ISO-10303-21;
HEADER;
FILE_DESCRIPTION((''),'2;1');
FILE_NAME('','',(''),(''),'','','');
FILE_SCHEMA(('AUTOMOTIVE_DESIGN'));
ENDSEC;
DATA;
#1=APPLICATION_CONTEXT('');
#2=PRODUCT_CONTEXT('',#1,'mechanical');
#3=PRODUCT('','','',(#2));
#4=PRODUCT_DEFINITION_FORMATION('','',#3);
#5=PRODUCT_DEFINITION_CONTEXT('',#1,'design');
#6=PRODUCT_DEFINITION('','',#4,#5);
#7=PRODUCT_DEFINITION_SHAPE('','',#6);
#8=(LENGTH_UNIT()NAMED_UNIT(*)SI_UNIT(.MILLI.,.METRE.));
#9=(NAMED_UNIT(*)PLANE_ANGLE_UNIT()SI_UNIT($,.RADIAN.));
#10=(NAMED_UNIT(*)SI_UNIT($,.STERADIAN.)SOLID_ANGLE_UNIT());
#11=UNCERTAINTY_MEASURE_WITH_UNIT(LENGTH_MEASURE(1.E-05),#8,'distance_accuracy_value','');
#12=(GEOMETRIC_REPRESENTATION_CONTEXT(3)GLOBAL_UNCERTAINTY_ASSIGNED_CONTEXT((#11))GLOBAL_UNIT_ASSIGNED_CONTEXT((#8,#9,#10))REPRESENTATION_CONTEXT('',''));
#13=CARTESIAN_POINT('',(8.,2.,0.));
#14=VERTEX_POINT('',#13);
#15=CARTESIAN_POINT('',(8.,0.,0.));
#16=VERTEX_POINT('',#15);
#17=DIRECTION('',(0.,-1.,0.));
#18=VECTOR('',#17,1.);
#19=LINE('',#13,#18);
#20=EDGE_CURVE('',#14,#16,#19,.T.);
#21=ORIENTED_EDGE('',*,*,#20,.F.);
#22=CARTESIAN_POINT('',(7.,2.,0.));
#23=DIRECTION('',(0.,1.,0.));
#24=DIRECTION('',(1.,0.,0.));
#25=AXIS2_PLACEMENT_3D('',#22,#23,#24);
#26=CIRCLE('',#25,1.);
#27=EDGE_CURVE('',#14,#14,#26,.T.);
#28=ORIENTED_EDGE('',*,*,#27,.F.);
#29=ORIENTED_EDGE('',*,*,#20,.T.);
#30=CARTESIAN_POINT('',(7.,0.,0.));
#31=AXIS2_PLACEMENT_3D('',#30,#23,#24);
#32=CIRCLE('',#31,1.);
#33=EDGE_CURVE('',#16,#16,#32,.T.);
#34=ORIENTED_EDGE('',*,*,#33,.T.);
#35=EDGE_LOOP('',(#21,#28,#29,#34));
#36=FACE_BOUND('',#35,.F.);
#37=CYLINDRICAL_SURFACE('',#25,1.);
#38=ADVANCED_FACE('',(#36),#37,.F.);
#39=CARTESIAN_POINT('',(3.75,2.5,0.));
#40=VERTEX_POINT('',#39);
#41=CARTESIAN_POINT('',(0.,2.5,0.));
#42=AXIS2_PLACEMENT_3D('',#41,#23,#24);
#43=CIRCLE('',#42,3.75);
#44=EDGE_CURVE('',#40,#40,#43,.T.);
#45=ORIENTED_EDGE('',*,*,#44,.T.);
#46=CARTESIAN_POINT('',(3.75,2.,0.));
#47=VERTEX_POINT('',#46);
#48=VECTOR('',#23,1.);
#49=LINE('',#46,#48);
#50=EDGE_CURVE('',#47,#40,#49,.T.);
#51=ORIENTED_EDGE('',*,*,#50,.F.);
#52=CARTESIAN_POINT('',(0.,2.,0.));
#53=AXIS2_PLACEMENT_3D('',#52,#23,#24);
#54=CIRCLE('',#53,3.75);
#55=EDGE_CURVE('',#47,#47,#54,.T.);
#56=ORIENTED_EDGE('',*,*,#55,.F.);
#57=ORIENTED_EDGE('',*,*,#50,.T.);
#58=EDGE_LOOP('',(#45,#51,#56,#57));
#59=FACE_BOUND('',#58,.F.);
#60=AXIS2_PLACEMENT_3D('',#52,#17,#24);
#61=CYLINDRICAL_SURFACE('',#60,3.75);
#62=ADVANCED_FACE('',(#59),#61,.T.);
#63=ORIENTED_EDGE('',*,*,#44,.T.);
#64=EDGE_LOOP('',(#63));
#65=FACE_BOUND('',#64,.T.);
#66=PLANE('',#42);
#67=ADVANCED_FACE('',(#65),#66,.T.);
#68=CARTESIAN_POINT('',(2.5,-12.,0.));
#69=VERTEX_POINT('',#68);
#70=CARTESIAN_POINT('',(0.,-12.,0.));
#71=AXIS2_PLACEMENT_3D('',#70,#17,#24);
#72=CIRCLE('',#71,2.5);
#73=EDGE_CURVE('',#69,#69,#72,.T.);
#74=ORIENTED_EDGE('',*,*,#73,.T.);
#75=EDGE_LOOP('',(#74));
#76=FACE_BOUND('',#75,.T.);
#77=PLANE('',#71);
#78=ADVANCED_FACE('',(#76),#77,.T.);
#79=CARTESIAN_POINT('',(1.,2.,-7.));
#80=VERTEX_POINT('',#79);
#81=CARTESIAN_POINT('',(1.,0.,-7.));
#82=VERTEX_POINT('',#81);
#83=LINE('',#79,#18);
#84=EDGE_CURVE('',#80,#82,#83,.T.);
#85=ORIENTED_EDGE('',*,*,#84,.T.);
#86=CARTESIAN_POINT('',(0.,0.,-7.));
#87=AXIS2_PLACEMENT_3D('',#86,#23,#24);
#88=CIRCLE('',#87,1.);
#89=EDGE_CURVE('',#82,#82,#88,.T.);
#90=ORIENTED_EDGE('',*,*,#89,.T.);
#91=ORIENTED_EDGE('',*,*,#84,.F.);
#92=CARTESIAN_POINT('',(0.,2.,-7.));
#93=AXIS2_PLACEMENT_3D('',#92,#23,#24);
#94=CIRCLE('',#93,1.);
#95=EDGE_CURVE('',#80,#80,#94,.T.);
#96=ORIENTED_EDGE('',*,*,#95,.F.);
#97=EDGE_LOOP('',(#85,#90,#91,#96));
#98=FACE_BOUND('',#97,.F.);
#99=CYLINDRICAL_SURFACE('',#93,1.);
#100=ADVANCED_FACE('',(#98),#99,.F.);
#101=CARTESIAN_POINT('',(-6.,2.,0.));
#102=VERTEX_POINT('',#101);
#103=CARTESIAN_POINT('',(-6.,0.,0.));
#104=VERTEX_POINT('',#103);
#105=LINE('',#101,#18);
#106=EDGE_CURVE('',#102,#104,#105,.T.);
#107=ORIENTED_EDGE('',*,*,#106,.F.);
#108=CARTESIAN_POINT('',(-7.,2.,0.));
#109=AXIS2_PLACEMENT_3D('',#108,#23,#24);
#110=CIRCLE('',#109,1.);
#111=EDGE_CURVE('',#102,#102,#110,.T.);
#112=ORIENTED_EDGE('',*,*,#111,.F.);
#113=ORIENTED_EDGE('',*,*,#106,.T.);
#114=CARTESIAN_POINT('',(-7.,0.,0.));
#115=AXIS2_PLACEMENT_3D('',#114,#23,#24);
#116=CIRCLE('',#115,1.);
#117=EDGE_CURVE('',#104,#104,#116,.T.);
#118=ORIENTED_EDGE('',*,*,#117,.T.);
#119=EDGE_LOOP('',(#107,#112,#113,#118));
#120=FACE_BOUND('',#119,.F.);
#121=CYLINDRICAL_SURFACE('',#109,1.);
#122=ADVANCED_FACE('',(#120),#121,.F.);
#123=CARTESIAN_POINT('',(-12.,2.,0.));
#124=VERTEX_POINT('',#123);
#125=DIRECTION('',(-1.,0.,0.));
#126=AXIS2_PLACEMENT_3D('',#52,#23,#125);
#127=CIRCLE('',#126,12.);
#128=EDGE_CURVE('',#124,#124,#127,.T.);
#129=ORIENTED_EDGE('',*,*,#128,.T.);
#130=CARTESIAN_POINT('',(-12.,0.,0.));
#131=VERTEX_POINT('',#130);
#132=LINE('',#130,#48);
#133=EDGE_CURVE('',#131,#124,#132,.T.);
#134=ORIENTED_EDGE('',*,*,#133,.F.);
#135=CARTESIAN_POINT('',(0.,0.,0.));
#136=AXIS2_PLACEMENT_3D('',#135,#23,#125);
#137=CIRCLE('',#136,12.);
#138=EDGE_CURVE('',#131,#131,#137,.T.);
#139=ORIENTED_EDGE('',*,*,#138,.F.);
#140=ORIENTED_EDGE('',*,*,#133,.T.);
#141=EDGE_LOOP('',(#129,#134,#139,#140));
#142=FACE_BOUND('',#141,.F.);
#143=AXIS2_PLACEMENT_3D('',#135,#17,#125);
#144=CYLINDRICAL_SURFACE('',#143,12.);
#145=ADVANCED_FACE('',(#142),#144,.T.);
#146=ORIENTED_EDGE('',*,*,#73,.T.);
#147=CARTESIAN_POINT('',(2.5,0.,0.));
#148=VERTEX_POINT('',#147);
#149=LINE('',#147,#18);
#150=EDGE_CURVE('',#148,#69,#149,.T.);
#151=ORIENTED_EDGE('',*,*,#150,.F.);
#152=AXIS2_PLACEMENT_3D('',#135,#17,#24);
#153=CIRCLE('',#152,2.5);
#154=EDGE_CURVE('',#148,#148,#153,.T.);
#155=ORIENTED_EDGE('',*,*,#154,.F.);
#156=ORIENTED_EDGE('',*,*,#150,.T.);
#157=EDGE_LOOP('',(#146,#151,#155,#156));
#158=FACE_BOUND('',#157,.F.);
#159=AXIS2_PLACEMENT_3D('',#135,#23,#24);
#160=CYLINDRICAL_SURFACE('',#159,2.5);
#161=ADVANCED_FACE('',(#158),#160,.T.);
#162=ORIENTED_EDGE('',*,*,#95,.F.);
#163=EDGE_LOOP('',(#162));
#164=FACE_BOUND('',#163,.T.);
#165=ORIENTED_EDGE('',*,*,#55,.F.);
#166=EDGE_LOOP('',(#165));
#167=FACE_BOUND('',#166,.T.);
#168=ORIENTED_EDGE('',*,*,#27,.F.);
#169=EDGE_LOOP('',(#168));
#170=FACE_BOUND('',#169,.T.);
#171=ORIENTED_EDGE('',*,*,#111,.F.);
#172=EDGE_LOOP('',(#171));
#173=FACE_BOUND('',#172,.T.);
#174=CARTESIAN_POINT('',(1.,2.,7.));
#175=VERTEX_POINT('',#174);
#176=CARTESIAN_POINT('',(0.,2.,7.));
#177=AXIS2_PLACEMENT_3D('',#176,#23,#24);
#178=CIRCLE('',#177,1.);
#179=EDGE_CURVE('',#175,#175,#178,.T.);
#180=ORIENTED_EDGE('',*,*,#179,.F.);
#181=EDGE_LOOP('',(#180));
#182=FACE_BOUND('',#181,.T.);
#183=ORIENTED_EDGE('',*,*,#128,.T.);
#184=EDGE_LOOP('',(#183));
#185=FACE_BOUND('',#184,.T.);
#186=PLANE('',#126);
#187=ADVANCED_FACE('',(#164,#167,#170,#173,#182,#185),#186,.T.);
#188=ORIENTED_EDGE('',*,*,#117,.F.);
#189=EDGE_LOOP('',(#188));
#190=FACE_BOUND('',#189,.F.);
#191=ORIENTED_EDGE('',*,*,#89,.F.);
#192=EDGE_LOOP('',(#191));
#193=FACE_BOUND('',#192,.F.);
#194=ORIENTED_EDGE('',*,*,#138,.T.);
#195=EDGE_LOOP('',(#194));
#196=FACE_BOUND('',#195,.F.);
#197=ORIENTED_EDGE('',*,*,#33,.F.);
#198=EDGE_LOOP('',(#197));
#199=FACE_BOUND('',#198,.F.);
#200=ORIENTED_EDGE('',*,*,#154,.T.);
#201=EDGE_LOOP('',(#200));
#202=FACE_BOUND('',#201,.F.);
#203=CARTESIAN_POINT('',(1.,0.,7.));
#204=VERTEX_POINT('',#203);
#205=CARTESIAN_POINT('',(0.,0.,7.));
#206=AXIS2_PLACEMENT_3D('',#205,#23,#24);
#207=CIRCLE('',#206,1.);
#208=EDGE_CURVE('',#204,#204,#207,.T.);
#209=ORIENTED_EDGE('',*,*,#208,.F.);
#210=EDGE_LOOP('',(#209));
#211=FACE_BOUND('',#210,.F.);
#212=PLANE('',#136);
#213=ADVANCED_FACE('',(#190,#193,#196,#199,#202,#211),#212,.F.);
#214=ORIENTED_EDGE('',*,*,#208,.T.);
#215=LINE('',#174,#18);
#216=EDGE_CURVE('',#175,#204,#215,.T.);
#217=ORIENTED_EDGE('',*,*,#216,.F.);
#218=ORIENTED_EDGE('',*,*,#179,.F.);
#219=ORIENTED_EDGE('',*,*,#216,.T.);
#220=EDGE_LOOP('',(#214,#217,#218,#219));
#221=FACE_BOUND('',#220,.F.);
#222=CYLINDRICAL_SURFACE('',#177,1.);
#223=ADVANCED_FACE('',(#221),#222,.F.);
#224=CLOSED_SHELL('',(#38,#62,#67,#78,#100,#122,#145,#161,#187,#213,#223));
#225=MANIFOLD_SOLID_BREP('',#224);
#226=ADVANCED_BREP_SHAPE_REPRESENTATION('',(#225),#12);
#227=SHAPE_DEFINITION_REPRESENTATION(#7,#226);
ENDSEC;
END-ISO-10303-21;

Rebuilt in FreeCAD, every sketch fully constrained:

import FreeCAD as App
import Part
import Sketcher
from FreeCAD import Vector

doc = App.newDocument("Part")
body = doc.addObject("PartDesign::Body", "Body")

# Sketch on XZ plane
sketch1 = body.newObject("Sketcher::SketchObject", "Sketch")
sketch1.AttachmentSupport = (doc.getObject("XZ_Plane"), [""])
sketch1.MapMode = "FlatFace"
sketch1.addGeometry(Part.Circle(Vector(0, 0, 0), Vector(0, 0, 1), 12), False)
sketch1.addConstraint(Sketcher.Constraint("Coincident", 0, 3, -1, 1))
sketch1.addConstraint(Sketcher.Constraint("Diameter", 0, 24.0))
pad1 = body.newObject("PartDesign::Pad", "Pad")
pad1.Profile = sketch1
pad1.Length = 2
pad1.Reversed = True

# Sketch on XZ plane
sketch2 = body.newObject("Sketcher::SketchObject", "Sketch001")
sketch2.AttachmentSupport = (doc.getObject("XZ_Plane"), [""])
sketch2.MapMode = "FlatFace"
sketch2.addGeometry(Part.Circle(Vector(0, 0, 0), Vector(0, 0, 1), 2.5), False)
sketch2.addConstraint(Sketcher.Constraint("Coincident", 0, 3, -1, 1))
sketch2.addConstraint(Sketcher.Constraint("Diameter", 0, 5.0))
pad2 = body.newObject("PartDesign::Pad", "Pad001")
pad2.Profile = sketch2
pad2.Length = 12

# Sketch on XZ plane
sketch3 = body.newObject("Sketcher::SketchObject", "Sketch002")
sketch3.AttachmentSupport = (doc.getObject("XZ_Plane"), [""])
sketch3.MapMode = "FlatFace"
sketch3.AttachmentOffset = App.Placement(Vector(0, 0, -2), App.Rotation())
sketch3.addGeometry(Part.Circle(Vector(0, 0, 0), Vector(0, 0, 1), 3.8), False)
sketch3.addConstraint(Sketcher.Constraint("Coincident", 0, 3, -1, 1))
sketch3.addConstraint(Sketcher.Constraint("Diameter", 0, 7.5))
pad3 = body.newObject("PartDesign::Pad", "Pad002")
pad3.Profile = sketch3
pad3.Length = 0.5
pad3.Reversed = True

# Sketch on XZ plane
sketch4 = body.newObject("Sketcher::SketchObject", "Sketch003")
sketch4.AttachmentSupport = (doc.getObject("XZ_Plane"), [""])
sketch4.MapMode = "FlatFace"
sketch4.AttachmentOffset = App.Placement(Vector(0, 0, -2), App.Rotation())
sketch4.addGeometry(Part.Circle(Vector(0, -7, 0), Vector(0, 0, 1), 1), False)
sketch4.addGeometry(Part.Circle(Vector(0, 7, 0), Vector(0, 0, 1), 1), False)
sketch4.addGeometry(Part.Circle(Vector(-7, 0, 0), Vector(0, 0, 1), 1), False)
sketch4.addGeometry(Part.Circle(Vector(7, 0, 0), Vector(0, 0, 1), 1), False)
sketch4.addConstraint(Sketcher.Constraint("Equal", 0, 1))
sketch4.addConstraint(Sketcher.Constraint("Equal", 1, 2))
sketch4.addConstraint(Sketcher.Constraint("Equal", 2, 3))
sketch4.addConstraint(Sketcher.Constraint("Symmetric", 0, 3, 1, 3, -1, 1))
sketch4.addConstraint(Sketcher.Constraint("Symmetric", 2, 3, 3, 3, -1, 1))
sketch4.addConstraint(Sketcher.Constraint("PointOnObject", 0, 3, -2))
sketch4.addConstraint(Sketcher.Constraint("PointOnObject", 2, 3, -1))
sketch4.addConstraint(Sketcher.Constraint("Diameter", 0, 2.0))
sketch4.addConstraint(Sketcher.Constraint("DistanceY", 0, 3, -1, 1, 7.0))
sketch4.addConstraint(Sketcher.Constraint("DistanceX", 2, 3, -1, 1, 7.0))
pocket1 = body.newObject("PartDesign::Pocket", "Pocket")
pocket1.Profile = sketch4
pocket1.Type = "ThroughAll"
pocket1.Reversed = True

doc.recompute()
